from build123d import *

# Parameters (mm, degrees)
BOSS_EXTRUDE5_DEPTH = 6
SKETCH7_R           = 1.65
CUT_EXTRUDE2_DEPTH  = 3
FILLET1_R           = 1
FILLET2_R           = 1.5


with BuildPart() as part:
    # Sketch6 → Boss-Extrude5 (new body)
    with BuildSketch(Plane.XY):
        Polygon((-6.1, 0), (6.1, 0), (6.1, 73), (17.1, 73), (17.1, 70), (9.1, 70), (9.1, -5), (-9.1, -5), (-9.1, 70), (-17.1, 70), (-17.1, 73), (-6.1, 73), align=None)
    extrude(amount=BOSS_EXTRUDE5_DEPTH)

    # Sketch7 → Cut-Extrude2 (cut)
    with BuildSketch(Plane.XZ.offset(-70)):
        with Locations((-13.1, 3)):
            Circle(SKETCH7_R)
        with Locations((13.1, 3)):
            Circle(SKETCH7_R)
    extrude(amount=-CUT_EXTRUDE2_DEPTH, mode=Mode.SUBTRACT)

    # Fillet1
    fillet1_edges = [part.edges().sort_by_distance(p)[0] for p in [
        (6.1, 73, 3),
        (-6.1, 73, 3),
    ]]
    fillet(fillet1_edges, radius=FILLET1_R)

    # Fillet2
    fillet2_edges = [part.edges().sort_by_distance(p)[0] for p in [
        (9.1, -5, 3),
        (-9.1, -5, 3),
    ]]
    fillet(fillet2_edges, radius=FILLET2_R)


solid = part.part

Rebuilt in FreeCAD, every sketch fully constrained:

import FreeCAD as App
import Part
import Sketcher
from FreeCAD import Vector


def edges_at(feature, points):
    """Names of the edges that pass closest to the given points."""
    edges = feature.Shape.Edges
    near = lambda p: min(range(len(edges)), key=lambda i: edges[i].distToShape(Part.Vertex(*p))[0])
    return sorted({f"Edge{near(p) + 1}" for p in points})

doc = App.newDocument("Part")
body = doc.addObject("PartDesign::Body", "Body")

# Sketch on XY plane
sketch1 = doc.addObject("Sketcher::SketchObject", "Sketch")
body.addObject(sketch1)
sketch1.AttachmentSupport = (doc.XY_Plane, [""])
sketch1.MapMode = "FlatFace"
sketch1.addGeometry(Part.LineSegment(Vector(6.1, 0, 0), Vector(-6.1, 0, 0)), False)
sketch1.addGeometry(Part.LineSegment(Vector(-6.1, 0, 0), Vector(-6.1, 73, 0)), False)
sketch1.addGeometry(Part.LineSegment(Vector(-6.1, 73, 0), Vector(-17.1, 73, 0)), False)
sketch1.addGeometry(Part.LineSegment(Vector(-17.1, 73, 0), Vector(-17.1, 70, 0)), False)
sketch1.addGeometry(Part.LineSegment(Vector(-17.1, 70, 0), Vector(-9.1, 70, 0)), False)
sketch1.addGeometry(Part.LineSegment(Vector(-9.1, 70, 0), Vector(-9.1, -5, 0)), False)
sketch1.addGeometry(Part.LineSegment(Vector(-9.1, -5, 0), Vector(9.1, -5, 0)), False)
sketch1.addGeometry(Part.LineSegment(Vector(9.1, -5, 0), Vector(9.1, 70, 0)), False)
sketch1.addGeometry(Part.LineSegment(Vector(9.1, 70, 0), Vector(17.1, 70, 0)), False)
sketch1.addGeometry(Part.LineSegment(Vector(17.1, 70, 0), Vector(17.1, 73, 0)), False)
sketch1.addGeometry(Part.LineSegment(Vector(17.1, 73, 0), Vector(6.1, 73, 0)), False)
sketch1.addGeometry(Part.LineSegment(Vector(6.1, 73, 0), Vector(6.1, 0, 0)), False)
sketch1.addConstraint(Sketcher.Constraint("Coincident", 0, 2, 1, 1))
sketch1.addConstraint(Sketcher.Constraint("Coincident", 1, 2, 2, 1))
sketch1.addConstraint(Sketcher.Constraint("Coincident", 2, 2, 3, 1))
sketch1.addConstraint(Sketcher.Constraint("Coincident", 3, 2, 4, 1))
sketch1.addConstraint(Sketcher.Constraint("Coincident", 4, 2, 5, 1))
sketch1.addConstraint(Sketcher.Constraint("Coincident", 5, 2, 6, 1))
sketch1.addConstraint(Sketcher.Constraint("Coincident", 6, 2, 7, 1))
sketch1.addConstraint(Sketcher.Constraint("Coincident", 7, 2, 8, 1))
sketch1.addConstraint(Sketcher.Constraint("Coincident", 8, 2, 9, 1))
sketch1.addConstraint(Sketcher.Constraint("Coincident", 9, 2, 10, 1))
sketch1.addConstraint(Sketcher.Constraint("Coincident", 10, 2, 11, 1))
sketch1.addConstraint(Sketcher.Constraint("Coincident", 11, 2, 0, 1))
sketch1.addConstraint(Sketcher.Constraint("Horizontal", 0))
sketch1.addConstraint(Sketcher.Constraint("Vertical", 1))
sketch1.addConstraint(Sketcher.Constraint("Horizontal", 2))
sketch1.addConstraint(Sketcher.Constraint("Vertical", 3))
sketch1.addConstraint(Sketcher.Constraint("Horizontal", 4))
sketch1.addConstraint(Sketcher.Constraint("Vertical", 5))
sketch1.addConstraint(Sketcher.Constraint("Horizontal", 6))
sketch1.addConstraint(Sketcher.Constraint("Vertical", 7))
sketch1.addConstraint(Sketcher.Constraint("Horizontal", 8))
sketch1.addConstraint(Sketcher.Constraint("Vertical", 9))
sketch1.addConstraint(Sketcher.Constraint("Horizontal", 10))
sketch1.addConstraint(Sketcher.Constraint("Vertical", 11))
sketch1.addConstraint(Sketcher.Constraint("Symmetric", 0, 2, 11, 2, -1, 1))
sketch1.addConstraint(Sketcher.Constraint("Symmetric", 4, 2, 7, 2, -2))
sketch1.addConstraint(Sketcher.Constraint("Symmetric", 2, 2, 9, 2, -2))
sketch1.addConstraint(Sketcher.Constraint("DistanceX", 2, 2, 2, 1, 11.0))
sketch1.addConstraint(Sketcher.Constraint("DistanceX", 4, 1, 4, 2, 8.0))
sketch1.addConstraint(Sketcher.Constraint("DistanceY", 1, 1, 1, 2, 73.0))
sketch1.addConstraint(Sketcher.Constraint("DistanceY", 3, 2, 3, 1, 3.0))
sketch1.addConstraint(Sketcher.Constraint("DistanceY", 5, 2, 5, 1, 75.0))
sketch1.addConstraint(Sketcher.Constraint("DistanceX", 0, 2, 0, 1, 12.2))
pad1 = doc.addObject("PartDesign::Pad", "Pad")
body.addObject(pad1)
pad1.Profile = sketch1
pad1.Length = 6

# Sketch on XZ plane
sketch2 = doc.addObject("Sketcher::SketchObject", "Sketch001")
body.addObject(sketch2)
sketch2.AttachmentSupport = (doc.XZ_Plane, [""])
sketch2.MapMode = "FlatFace"
sketch2.AttachmentOffset = App.Placement(Vector(0, 0, -70), App.Rotation())
sketch2.addGeometry(Part.Circle(Vector(-13.1, 3, 0), Vector(0, 0, 1), 1.65), False)
sketch2.addGeometry(Part.Circle(Vector(13.1, 3, 0), Vector(0, 0, 1), 1.65), False)
sketch2.addConstraint(Sketcher.Constraint("Equal", 0, 1))
sketch2.addConstraint(Sketcher.Constraint("Symmetric", 0, 3, 1, 3, -2))
sketch2.addConstraint(Sketcher.Constraint("Diameter", 0, 3.3))
sketch2.addConstraint(Sketcher.Constraint("DistanceY", -1, 1, 0, 3, 3.0))
sketch2.addConstraint(Sketcher.Constraint("DistanceX", 0, 3, -1, 1, 13.1))
pocket1 = doc.addObject("PartDesign::Pocket", "Pocket")
body.addObject(pocket1)
pocket1.Profile = sketch2
pocket1.Length = 3
doc.recompute()

fillet = doc.addObject("PartDesign::Fillet", "Fillet")
body.addObject(fillet)
fillet.Base = (pocket1, edges_at(pocket1, [(6.1, 73, 3), (-6.1, 73, 3)]))
fillet.Radius = 1
doc.recompute()

fillet2 = doc.addObject("PartDesign::Fillet", "Fillet001")
body.addObject(fillet2)
fillet2.Base = (fillet, edges_at(fillet, [(9.1, -5, 3), (-9.1, -5, 3)]))
fillet2.Radius = 1.5

doc.recompute()
